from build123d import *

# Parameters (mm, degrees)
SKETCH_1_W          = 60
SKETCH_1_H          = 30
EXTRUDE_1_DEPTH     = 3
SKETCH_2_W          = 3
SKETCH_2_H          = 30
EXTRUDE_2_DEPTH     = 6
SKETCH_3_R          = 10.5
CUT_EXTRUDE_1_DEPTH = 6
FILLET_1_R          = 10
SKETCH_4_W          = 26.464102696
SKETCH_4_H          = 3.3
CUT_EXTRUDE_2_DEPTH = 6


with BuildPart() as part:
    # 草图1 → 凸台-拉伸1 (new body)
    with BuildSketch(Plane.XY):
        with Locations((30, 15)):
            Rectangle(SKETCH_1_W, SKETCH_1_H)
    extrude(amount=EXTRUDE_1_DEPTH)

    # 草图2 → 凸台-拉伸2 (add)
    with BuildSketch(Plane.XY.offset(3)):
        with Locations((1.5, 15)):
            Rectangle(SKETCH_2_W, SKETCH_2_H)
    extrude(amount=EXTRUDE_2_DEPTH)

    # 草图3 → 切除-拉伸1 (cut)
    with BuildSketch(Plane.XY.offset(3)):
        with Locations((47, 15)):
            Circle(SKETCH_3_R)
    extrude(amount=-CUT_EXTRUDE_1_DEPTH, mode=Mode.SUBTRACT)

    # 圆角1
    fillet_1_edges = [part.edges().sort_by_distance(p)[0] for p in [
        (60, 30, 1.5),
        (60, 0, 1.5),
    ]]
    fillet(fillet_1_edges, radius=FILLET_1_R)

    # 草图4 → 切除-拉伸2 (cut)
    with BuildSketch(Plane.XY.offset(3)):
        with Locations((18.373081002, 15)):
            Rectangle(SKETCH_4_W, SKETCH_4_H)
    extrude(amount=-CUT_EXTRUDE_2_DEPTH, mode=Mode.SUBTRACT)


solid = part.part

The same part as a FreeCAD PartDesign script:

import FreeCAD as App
import Part
import Sketcher


def edges_at(feature, points):
    """Names of the edges that pass closest to the given points."""
    edges = feature.Shape.Edges
    near = lambda p: min(range(len(edges)), key=lambda i: edges[i].distToShape(Part.Vertex(*p))[0])
    return sorted({f"Edge{near(p) + 1}" for p in points})

doc = App.newDocument("Part")
body = doc.addObject("PartDesign::Body", "Body")

sketch1 = body.newObject("Sketcher::SketchObject", "Sketch")
sketch1.AttachmentSupport = (doc.getObject("XY_Plane"), [""])
sketch1.MapMode = "FlatFace"
sketch1.addGeometry(Part.LineSegment(App.Vector(0, 30, 0), App.Vector(0, 0, 0)), False)
sketch1.addGeometry(Part.LineSegment(App.Vector(0, 0, 0), App.Vector(60, 0, 0)), False)
sketch1.addGeometry(Part.LineSegment(App.Vector(60, 0, 0), App.Vector(60, 30, 0)), False)
sketch1.addGeometry(Part.LineSegment(App.Vector(60, 30, 0), App.Vector(0, 30, 0)), False)
sketch1.addConstraint(Sketcher.Constraint("Coincident", 0, 2, 1, 1))
sketch1.addConstraint(Sketcher.Constraint("Coincident", 1, 2, 2, 1))
sketch1.addConstraint(Sketcher.Constraint("Coincident", 2, 2, 3, 1))
sketch1.addConstraint(Sketcher.Constraint("Coincident", 3, 2, 0, 1))
sketch1.addConstraint(Sketcher.Constraint("Vertical", 0))
sketch1.addConstraint(Sketcher.Constraint("Horizontal", 1))
sketch1.addConstraint(Sketcher.Constraint("Vertical", 2))
sketch1.addConstraint(Sketcher.Constraint("Horizontal", 3))
sketch1.addConstraint(Sketcher.Constraint("Coincident", 0, 2, -1, 1))
sketch1.addConstraint(Sketcher.Constraint("DistanceX", 1, 1, 1, 2, 60.0))
sketch1.addConstraint(Sketcher.Constraint("DistanceY", 0, 2, 0, 1, 30.0))
pad1 = body.newObject("PartDesign::Pad", "Pad")
pad1.Profile = sketch1
pad1.Length = 3

sketch2 = body.newObject("Sketcher::SketchObject", "Sketch001")
sketch2.AttachmentSupport = (doc.getObject("XY_Plane"), [""])
sketch2.MapMode = "FlatFace"
sketch2.AttachmentOffset = App.Placement(App.Vector(0, 0, 3), App.Rotation())
sketch2.addGeometry(Part.LineSegment(App.Vector(0, 30, 0), App.Vector(0, 0, 0)), False)
sketch2.addGeometry(Part.LineSegment(App.Vector(0, 0, 0), App.Vector(3, 0, 0)), False)
sketch2.addGeometry(Part.LineSegment(App.Vector(3, 0, 0), App.Vector(3, 30, 0)), False)
sketch2.addGeometry(Part.LineSegment(App.Vector(3, 30, 0), App.Vector(0, 30, 0)), False)
sketch2.addConstraint(Sketcher.Constraint("Coincident", 0, 2, 1, 1))
sketch2.addConstraint(Sketcher.Constraint("Coincident", 1, 2, 2, 1))
sketch2.addConstraint(Sketcher.Constraint("Coincident", 2, 2, 3, 1))
sketch2.addConstraint(Sketcher.Constraint("Coincident", 3, 2, 0, 1))
sketch2.addConstraint(Sketcher.Constraint("Vertical", 0))
sketch2.addConstraint(Sketcher.Constraint("Horizontal", 1))
sketch2.addConstraint(Sketcher.Constraint("Vertical", 2))
sketch2.addConstraint(Sketcher.Constraint("Horizontal", 3))
sketch2.addConstraint(Sketcher.Constraint("Coincident", 0, 2, -1, 1))
sketch2.addConstraint(Sketcher.Constraint("DistanceX", 1, 1, 1, 2, 3.0))
sketch2.addConstraint(Sketcher.Constraint("DistanceY", 0, 2, 0, 1, 30.0))
pad2 = body.newObject("PartDesign::Pad", "Pad001")
pad2.Profile = sketch2
pad2.Length = 6

sketch3 = body.newObject("Sketcher::SketchObject", "Sketch002")
sketch3.AttachmentSupport = (doc.getObject("XY_Plane"), [""])
sketch3.MapMode = "FlatFace"
sketch3.AttachmentOffset = App.Placement(App.Vector(0, 0, 3), App.Rotation())
sketch3.addGeometry(Part.Circle(App.Vector(47, 15, 0), App.Vector(0, 0, 1), 10.5), False)
sketch3.addConstraint(Sketcher.Constraint("Diameter", 0, 21.0))
sketch3.addConstraint(Sketcher.Constraint("DistanceX", -1, 1, 0, 3, 47.0))
sketch3.addConstraint(Sketcher.Constraint("DistanceY", -1, 1, 0, 3, 15.0))
pocket1 = body.newObject("PartDesign::Pocket", "Pocket")
pocket1.Profile = sketch3
pocket1.Length = 6
doc.recompute()

fillet = body.newObject("PartDesign::Fillet", "Fillet")
fillet.Base = (pocket1, edges_at(pocket1, [(60, 30, 1.5), (60, 0, 1.5)]))
fillet.Radius = 10

sketch4 = body.newObject("Sketcher::SketchObject", "Sketch003")
sketch4.AttachmentSupport = (doc.getObject("XY_Plane"), [""])
sketch4.MapMode = "FlatFace"
sketch4.AttachmentOffset = App.Placement(App.Vector(0, 0, 3), App.Rotation())
sketch4.addGeometry(Part.LineSegment(App.Vector(5.14103, 16.65, 0), App.Vector(5.14103, 13.35, 0)), False)
sketch4.addGeometry(Part.LineSegment(App.Vector(5.14103, 13.35, 0), App.Vector(31.605132, 13.35, 0)), False)
sketch4.addGeometry(Part.LineSegment(App.Vector(31.605132, 13.35, 0), App.Vector(31.605132, 16.65, 0)), False)
sketch4.addGeometry(Part.LineSegment(App.Vector(31.605132, 16.65, 0), App.Vector(5.14103, 16.65, 0)), False)
sketch4.addConstraint(Sketcher.Constraint("Coincident", 0, 2, 1, 1))
sketch4.addConstraint(Sketcher.Constraint("Coincident", 1, 2, 2, 1))
sketch4.addConstraint(Sketcher.Constraint("Coincident", 2, 2, 3, 1))
sketch4.addConstraint(Sketcher.Constraint("Coincident", 3, 2, 0, 1))
sketch4.addConstraint(Sketcher.Constraint("Vertical", 0))
sketch4.addConstraint(Sketcher.Constraint("Horizontal", 1))
sketch4.addConstraint(Sketcher.Constraint("Vertical", 2))
sketch4.addConstraint(Sketcher.Constraint("Horizontal", 3))
sketch4.addConstraint(Sketcher.Constraint("DistanceY", 0, 2, 0, 1, 3.3))
sketch4.addConstraint(Sketcher.Constraint("DistanceY", -1, 1, 0, 2, 13.35))
sketch4.addConstraint(Sketcher.Constraint("DistanceX", 1, 1, 1, 2, 26.464103))
sketch4.addConstraint(Sketcher.Constraint("DistanceX", -1, 1, 0, 2, 5.14103))
pocket2 = body.newObject("PartDesign::Pocket", "Pocket001")
pocket2.Profile = sketch4
pocket2.Length = 6

doc.recompute()
